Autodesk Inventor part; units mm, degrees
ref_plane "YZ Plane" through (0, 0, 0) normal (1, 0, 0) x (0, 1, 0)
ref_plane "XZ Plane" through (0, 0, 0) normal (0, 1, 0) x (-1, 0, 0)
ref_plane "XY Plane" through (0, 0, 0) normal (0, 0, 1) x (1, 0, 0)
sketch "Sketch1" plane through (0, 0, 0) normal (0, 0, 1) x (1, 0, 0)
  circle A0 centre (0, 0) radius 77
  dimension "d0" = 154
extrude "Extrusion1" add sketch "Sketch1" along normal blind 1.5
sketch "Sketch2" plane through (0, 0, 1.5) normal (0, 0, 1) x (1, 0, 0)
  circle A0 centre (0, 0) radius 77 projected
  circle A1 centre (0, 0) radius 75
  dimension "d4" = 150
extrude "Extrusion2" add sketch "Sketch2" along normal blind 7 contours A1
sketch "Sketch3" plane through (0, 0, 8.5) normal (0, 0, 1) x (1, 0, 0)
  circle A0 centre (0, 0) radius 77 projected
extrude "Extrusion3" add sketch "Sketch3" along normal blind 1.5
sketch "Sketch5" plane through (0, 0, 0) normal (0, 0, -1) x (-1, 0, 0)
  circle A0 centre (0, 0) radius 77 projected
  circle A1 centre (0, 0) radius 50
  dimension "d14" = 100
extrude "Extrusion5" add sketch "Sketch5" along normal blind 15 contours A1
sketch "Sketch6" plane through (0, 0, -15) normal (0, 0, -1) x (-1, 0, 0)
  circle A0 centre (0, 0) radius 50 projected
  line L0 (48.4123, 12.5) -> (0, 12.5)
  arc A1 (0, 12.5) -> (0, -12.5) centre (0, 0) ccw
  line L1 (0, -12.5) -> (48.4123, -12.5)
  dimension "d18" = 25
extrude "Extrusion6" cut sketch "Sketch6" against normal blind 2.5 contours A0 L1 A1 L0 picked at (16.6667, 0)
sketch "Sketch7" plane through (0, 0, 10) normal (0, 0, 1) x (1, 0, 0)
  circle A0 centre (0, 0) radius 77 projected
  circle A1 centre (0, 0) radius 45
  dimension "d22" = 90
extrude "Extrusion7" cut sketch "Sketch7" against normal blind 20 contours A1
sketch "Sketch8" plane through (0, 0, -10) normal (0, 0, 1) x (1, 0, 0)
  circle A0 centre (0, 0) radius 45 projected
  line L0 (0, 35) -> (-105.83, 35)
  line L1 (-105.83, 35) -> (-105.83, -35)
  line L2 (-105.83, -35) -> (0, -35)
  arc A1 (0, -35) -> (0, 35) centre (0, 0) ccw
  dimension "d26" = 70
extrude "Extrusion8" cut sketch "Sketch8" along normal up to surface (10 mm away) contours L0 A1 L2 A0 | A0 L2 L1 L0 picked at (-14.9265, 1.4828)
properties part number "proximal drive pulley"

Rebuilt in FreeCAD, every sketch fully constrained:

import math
import FreeCAD as App
import Part
import Sketcher

V = App.Vector
Q = App.Units.Quantity

doc = App.newDocument("Part")
body = doc.addObject("PartDesign::Body", "Body")

sketch1 = body.newObject("Sketcher::SketchObject", "Sketch")
sketch1.AttachmentSupport = (doc.getObject("XY_Plane"), [""])
sketch1.MapMode = "FlatFace"
sketch1.addGeometry(Part.Circle(V(0, 0, 0), V(0, 0, 1), 77), False)
sketch1.addConstraint([
    Sketcher.Constraint("Coincident", 0, 3, -1, 1),
    Sketcher.Constraint("Diameter", 0, Q("154 mm")),
])
pad1 = body.newObject("PartDesign::Pad", "Pad")
pad1.Profile = sketch1
pad1.Length = 1.5

sketch2 = body.newObject("Sketcher::SketchObject", "Sketch001")
sketch2.AttachmentSupport = (doc.getObject("XY_Plane"), [""])
sketch2.MapMode = "FlatFace"
sketch2.AttachmentOffset = App.Placement(V(0, 0, 1.5), App.Rotation())
sketch2.addGeometry(Part.Circle(V(0, 0, 0), V(0, 0, 1), 75), False)
sketch2.addConstraint([
    Sketcher.Constraint("Coincident", 0, 3, -1, 1),
    Sketcher.Constraint("Diameter", 0, Q("150 mm")),
])
pad2 = body.newObject("PartDesign::Pad", "Pad001")
pad2.Profile = sketch2
pad2.Length = 7

sketch3 = body.newObject("Sketcher::SketchObject", "Sketch002")
sketch3.AttachmentSupport = (doc.getObject("XY_Plane"), [""])
sketch3.MapMode = "FlatFace"
sketch3.AttachmentOffset = App.Placement(V(0, 0, 8.5), App.Rotation())
sketch3.addGeometry(Part.Circle(V(0, 0, 0), V(0, 0, 1), 77), False)
sketch3.addConstraint([
    Sketcher.Constraint("Coincident", 0, 3, -1, 1),
    Sketcher.Constraint("Diameter", 0, Q("154 mm")),
])
pad3 = body.newObject("PartDesign::Pad", "Pad002")
pad3.Profile = sketch3
pad3.Length = 1.5

sketch4 = body.newObject("Sketcher::SketchObject", "Sketch003")
sketch4.AttachmentSupport = (doc.getObject("XY_Plane"), [""])
sketch4.MapMode = "FlatFace"
sketch4.addGeometry(Part.Circle(V(0, 0, 0), V(0, 0, 1), 50), False)
sketch4.addConstraint([
    Sketcher.Constraint("Coincident", 0, 3, -1, 1),
    Sketcher.Constraint("Diameter", 0, Q("100 mm")),
])
pad4 = body.newObject("PartDesign::Pad", "Pad003")
pad4.Profile = sketch4
pad4.Length = 15
pad4.Reversed = True

sketch5 = body.newObject("Sketcher::SketchObject", "Sketch004")
sketch5.AttachmentSupport = (doc.getObject("XY_Plane"), [""])
sketch5.MapMode = "FlatFace"
sketch5.AttachmentOffset = App.Placement(V(0, 0, -15), App.Rotation())
sketch5.addGeometry([
    Part.ArcOfCircle(Part.Circle(V(0, 0, 0), V(0, 0, 1), 50), math.radians(166), math.radians(194)),
    Part.LineSegment(V(-48, 12, 0), V(0, 12, 0)),
    Part.ArcOfCircle(Part.Circle(V(0, 0, 0), V(0, 0, 1), 12), math.radians(-90), math.radians(90)),
    Part.LineSegment(V(0, -12, 0), V(-48, -12, 0)),
], False)
sketch5.addConstraint([
    Sketcher.Constraint("Coincident", 0, 1, 1, 1),
    Sketcher.Constraint("Tangent", 1, 2, 2, 2),
    Sketcher.Constraint("Tangent", 2, 1, 3, 1),
    Sketcher.Constraint("Coincident", 3, 2, 0, 2),
    Sketcher.Constraint("Horizontal", 1),
    Sketcher.Constraint("Horizontal", 3),
    Sketcher.Constraint("Coincident", 0, 3, -1, 1),
    Sketcher.Constraint("Coincident", 2, 3, -1, 1),
    Sketcher.Constraint("Radius", 2, Q("12.5 mm")),
    Sketcher.Constraint("Radius", 0, Q("50 mm")),
])
pocket1 = body.newObject("PartDesign::Pocket", "Pocket")
pocket1.Profile = sketch5
pocket1.Length = 2.5
pocket1.Reversed = True

sketch6 = body.newObject("Sketcher::SketchObject", "Sketch005")
sketch6.AttachmentSupport = (doc.getObject("XY_Plane"), [""])
sketch6.MapMode = "FlatFace"
sketch6.AttachmentOffset = App.Placement(V(0, 0, 10), App.Rotation())
sketch6.addGeometry(Part.Circle(V(0, 0, 0), V(0, 0, 1), 45), False)
sketch6.addConstraint([
    Sketcher.Constraint("Coincident", 0, 3, -1, 1),
    Sketcher.Constraint("Diameter", 0, Q("90 mm")),
])
pocket2 = body.newObject("PartDesign::Pocket", "Pocket001")
pocket2.Profile = sketch6
pocket2.Length = 20

sketch7 = body.newObject("Sketcher::SketchObject", "Sketch006")
sketch7.AttachmentSupport = (doc.getObject("XY_Plane"), [""])
sketch7.MapMode = "FlatFace"
sketch7.AttachmentOffset = App.Placement(V(0, 0, -10), App.Rotation())
sketch7.addGeometry([
    Part.LineSegment(V(0, 35, 0), V(-106, 35, 0)),
    Part.LineSegment(V(-106, 35, 0), V(-106, -35, 0)),
    Part.LineSegment(V(-106, -35, 0), V(0, -35, 0)),
    Part.ArcOfCircle(Part.Circle(V(0, 0, 0), V(0, 0, 1), 35), math.radians(-90), math.radians(90)),
], False)
sketch7.addConstraint([
    Sketcher.Constraint("Coincident", 0, 2, 1, 1),
    Sketcher.Constraint("Coincident", 1, 2, 2, 1),
    Sketcher.Constraint("Tangent", 2, 2, 3, 1),
    Sketcher.Constraint("Tangent", 3, 2, 0, 1),
    Sketcher.Constraint("Horizontal", 0),
    Sketcher.Constraint("Vertical", 1),
    Sketcher.Constraint("Horizontal", 2),
    Sketcher.Constraint("Coincident", 3, 3, -1, 1),
    Sketcher.Constraint("Radius", 3, Q("35 mm")),
    Sketcher.Constraint("DistanceX", 0, 2, 0, 1, Q("105.83 mm")),
])
pocket3 = body.newObject("PartDesign::Pocket", "Pocket002")
pocket3.Profile = sketch7
pocket3.Length = 10
pocket3.Reversed = True

doc.recompute()
